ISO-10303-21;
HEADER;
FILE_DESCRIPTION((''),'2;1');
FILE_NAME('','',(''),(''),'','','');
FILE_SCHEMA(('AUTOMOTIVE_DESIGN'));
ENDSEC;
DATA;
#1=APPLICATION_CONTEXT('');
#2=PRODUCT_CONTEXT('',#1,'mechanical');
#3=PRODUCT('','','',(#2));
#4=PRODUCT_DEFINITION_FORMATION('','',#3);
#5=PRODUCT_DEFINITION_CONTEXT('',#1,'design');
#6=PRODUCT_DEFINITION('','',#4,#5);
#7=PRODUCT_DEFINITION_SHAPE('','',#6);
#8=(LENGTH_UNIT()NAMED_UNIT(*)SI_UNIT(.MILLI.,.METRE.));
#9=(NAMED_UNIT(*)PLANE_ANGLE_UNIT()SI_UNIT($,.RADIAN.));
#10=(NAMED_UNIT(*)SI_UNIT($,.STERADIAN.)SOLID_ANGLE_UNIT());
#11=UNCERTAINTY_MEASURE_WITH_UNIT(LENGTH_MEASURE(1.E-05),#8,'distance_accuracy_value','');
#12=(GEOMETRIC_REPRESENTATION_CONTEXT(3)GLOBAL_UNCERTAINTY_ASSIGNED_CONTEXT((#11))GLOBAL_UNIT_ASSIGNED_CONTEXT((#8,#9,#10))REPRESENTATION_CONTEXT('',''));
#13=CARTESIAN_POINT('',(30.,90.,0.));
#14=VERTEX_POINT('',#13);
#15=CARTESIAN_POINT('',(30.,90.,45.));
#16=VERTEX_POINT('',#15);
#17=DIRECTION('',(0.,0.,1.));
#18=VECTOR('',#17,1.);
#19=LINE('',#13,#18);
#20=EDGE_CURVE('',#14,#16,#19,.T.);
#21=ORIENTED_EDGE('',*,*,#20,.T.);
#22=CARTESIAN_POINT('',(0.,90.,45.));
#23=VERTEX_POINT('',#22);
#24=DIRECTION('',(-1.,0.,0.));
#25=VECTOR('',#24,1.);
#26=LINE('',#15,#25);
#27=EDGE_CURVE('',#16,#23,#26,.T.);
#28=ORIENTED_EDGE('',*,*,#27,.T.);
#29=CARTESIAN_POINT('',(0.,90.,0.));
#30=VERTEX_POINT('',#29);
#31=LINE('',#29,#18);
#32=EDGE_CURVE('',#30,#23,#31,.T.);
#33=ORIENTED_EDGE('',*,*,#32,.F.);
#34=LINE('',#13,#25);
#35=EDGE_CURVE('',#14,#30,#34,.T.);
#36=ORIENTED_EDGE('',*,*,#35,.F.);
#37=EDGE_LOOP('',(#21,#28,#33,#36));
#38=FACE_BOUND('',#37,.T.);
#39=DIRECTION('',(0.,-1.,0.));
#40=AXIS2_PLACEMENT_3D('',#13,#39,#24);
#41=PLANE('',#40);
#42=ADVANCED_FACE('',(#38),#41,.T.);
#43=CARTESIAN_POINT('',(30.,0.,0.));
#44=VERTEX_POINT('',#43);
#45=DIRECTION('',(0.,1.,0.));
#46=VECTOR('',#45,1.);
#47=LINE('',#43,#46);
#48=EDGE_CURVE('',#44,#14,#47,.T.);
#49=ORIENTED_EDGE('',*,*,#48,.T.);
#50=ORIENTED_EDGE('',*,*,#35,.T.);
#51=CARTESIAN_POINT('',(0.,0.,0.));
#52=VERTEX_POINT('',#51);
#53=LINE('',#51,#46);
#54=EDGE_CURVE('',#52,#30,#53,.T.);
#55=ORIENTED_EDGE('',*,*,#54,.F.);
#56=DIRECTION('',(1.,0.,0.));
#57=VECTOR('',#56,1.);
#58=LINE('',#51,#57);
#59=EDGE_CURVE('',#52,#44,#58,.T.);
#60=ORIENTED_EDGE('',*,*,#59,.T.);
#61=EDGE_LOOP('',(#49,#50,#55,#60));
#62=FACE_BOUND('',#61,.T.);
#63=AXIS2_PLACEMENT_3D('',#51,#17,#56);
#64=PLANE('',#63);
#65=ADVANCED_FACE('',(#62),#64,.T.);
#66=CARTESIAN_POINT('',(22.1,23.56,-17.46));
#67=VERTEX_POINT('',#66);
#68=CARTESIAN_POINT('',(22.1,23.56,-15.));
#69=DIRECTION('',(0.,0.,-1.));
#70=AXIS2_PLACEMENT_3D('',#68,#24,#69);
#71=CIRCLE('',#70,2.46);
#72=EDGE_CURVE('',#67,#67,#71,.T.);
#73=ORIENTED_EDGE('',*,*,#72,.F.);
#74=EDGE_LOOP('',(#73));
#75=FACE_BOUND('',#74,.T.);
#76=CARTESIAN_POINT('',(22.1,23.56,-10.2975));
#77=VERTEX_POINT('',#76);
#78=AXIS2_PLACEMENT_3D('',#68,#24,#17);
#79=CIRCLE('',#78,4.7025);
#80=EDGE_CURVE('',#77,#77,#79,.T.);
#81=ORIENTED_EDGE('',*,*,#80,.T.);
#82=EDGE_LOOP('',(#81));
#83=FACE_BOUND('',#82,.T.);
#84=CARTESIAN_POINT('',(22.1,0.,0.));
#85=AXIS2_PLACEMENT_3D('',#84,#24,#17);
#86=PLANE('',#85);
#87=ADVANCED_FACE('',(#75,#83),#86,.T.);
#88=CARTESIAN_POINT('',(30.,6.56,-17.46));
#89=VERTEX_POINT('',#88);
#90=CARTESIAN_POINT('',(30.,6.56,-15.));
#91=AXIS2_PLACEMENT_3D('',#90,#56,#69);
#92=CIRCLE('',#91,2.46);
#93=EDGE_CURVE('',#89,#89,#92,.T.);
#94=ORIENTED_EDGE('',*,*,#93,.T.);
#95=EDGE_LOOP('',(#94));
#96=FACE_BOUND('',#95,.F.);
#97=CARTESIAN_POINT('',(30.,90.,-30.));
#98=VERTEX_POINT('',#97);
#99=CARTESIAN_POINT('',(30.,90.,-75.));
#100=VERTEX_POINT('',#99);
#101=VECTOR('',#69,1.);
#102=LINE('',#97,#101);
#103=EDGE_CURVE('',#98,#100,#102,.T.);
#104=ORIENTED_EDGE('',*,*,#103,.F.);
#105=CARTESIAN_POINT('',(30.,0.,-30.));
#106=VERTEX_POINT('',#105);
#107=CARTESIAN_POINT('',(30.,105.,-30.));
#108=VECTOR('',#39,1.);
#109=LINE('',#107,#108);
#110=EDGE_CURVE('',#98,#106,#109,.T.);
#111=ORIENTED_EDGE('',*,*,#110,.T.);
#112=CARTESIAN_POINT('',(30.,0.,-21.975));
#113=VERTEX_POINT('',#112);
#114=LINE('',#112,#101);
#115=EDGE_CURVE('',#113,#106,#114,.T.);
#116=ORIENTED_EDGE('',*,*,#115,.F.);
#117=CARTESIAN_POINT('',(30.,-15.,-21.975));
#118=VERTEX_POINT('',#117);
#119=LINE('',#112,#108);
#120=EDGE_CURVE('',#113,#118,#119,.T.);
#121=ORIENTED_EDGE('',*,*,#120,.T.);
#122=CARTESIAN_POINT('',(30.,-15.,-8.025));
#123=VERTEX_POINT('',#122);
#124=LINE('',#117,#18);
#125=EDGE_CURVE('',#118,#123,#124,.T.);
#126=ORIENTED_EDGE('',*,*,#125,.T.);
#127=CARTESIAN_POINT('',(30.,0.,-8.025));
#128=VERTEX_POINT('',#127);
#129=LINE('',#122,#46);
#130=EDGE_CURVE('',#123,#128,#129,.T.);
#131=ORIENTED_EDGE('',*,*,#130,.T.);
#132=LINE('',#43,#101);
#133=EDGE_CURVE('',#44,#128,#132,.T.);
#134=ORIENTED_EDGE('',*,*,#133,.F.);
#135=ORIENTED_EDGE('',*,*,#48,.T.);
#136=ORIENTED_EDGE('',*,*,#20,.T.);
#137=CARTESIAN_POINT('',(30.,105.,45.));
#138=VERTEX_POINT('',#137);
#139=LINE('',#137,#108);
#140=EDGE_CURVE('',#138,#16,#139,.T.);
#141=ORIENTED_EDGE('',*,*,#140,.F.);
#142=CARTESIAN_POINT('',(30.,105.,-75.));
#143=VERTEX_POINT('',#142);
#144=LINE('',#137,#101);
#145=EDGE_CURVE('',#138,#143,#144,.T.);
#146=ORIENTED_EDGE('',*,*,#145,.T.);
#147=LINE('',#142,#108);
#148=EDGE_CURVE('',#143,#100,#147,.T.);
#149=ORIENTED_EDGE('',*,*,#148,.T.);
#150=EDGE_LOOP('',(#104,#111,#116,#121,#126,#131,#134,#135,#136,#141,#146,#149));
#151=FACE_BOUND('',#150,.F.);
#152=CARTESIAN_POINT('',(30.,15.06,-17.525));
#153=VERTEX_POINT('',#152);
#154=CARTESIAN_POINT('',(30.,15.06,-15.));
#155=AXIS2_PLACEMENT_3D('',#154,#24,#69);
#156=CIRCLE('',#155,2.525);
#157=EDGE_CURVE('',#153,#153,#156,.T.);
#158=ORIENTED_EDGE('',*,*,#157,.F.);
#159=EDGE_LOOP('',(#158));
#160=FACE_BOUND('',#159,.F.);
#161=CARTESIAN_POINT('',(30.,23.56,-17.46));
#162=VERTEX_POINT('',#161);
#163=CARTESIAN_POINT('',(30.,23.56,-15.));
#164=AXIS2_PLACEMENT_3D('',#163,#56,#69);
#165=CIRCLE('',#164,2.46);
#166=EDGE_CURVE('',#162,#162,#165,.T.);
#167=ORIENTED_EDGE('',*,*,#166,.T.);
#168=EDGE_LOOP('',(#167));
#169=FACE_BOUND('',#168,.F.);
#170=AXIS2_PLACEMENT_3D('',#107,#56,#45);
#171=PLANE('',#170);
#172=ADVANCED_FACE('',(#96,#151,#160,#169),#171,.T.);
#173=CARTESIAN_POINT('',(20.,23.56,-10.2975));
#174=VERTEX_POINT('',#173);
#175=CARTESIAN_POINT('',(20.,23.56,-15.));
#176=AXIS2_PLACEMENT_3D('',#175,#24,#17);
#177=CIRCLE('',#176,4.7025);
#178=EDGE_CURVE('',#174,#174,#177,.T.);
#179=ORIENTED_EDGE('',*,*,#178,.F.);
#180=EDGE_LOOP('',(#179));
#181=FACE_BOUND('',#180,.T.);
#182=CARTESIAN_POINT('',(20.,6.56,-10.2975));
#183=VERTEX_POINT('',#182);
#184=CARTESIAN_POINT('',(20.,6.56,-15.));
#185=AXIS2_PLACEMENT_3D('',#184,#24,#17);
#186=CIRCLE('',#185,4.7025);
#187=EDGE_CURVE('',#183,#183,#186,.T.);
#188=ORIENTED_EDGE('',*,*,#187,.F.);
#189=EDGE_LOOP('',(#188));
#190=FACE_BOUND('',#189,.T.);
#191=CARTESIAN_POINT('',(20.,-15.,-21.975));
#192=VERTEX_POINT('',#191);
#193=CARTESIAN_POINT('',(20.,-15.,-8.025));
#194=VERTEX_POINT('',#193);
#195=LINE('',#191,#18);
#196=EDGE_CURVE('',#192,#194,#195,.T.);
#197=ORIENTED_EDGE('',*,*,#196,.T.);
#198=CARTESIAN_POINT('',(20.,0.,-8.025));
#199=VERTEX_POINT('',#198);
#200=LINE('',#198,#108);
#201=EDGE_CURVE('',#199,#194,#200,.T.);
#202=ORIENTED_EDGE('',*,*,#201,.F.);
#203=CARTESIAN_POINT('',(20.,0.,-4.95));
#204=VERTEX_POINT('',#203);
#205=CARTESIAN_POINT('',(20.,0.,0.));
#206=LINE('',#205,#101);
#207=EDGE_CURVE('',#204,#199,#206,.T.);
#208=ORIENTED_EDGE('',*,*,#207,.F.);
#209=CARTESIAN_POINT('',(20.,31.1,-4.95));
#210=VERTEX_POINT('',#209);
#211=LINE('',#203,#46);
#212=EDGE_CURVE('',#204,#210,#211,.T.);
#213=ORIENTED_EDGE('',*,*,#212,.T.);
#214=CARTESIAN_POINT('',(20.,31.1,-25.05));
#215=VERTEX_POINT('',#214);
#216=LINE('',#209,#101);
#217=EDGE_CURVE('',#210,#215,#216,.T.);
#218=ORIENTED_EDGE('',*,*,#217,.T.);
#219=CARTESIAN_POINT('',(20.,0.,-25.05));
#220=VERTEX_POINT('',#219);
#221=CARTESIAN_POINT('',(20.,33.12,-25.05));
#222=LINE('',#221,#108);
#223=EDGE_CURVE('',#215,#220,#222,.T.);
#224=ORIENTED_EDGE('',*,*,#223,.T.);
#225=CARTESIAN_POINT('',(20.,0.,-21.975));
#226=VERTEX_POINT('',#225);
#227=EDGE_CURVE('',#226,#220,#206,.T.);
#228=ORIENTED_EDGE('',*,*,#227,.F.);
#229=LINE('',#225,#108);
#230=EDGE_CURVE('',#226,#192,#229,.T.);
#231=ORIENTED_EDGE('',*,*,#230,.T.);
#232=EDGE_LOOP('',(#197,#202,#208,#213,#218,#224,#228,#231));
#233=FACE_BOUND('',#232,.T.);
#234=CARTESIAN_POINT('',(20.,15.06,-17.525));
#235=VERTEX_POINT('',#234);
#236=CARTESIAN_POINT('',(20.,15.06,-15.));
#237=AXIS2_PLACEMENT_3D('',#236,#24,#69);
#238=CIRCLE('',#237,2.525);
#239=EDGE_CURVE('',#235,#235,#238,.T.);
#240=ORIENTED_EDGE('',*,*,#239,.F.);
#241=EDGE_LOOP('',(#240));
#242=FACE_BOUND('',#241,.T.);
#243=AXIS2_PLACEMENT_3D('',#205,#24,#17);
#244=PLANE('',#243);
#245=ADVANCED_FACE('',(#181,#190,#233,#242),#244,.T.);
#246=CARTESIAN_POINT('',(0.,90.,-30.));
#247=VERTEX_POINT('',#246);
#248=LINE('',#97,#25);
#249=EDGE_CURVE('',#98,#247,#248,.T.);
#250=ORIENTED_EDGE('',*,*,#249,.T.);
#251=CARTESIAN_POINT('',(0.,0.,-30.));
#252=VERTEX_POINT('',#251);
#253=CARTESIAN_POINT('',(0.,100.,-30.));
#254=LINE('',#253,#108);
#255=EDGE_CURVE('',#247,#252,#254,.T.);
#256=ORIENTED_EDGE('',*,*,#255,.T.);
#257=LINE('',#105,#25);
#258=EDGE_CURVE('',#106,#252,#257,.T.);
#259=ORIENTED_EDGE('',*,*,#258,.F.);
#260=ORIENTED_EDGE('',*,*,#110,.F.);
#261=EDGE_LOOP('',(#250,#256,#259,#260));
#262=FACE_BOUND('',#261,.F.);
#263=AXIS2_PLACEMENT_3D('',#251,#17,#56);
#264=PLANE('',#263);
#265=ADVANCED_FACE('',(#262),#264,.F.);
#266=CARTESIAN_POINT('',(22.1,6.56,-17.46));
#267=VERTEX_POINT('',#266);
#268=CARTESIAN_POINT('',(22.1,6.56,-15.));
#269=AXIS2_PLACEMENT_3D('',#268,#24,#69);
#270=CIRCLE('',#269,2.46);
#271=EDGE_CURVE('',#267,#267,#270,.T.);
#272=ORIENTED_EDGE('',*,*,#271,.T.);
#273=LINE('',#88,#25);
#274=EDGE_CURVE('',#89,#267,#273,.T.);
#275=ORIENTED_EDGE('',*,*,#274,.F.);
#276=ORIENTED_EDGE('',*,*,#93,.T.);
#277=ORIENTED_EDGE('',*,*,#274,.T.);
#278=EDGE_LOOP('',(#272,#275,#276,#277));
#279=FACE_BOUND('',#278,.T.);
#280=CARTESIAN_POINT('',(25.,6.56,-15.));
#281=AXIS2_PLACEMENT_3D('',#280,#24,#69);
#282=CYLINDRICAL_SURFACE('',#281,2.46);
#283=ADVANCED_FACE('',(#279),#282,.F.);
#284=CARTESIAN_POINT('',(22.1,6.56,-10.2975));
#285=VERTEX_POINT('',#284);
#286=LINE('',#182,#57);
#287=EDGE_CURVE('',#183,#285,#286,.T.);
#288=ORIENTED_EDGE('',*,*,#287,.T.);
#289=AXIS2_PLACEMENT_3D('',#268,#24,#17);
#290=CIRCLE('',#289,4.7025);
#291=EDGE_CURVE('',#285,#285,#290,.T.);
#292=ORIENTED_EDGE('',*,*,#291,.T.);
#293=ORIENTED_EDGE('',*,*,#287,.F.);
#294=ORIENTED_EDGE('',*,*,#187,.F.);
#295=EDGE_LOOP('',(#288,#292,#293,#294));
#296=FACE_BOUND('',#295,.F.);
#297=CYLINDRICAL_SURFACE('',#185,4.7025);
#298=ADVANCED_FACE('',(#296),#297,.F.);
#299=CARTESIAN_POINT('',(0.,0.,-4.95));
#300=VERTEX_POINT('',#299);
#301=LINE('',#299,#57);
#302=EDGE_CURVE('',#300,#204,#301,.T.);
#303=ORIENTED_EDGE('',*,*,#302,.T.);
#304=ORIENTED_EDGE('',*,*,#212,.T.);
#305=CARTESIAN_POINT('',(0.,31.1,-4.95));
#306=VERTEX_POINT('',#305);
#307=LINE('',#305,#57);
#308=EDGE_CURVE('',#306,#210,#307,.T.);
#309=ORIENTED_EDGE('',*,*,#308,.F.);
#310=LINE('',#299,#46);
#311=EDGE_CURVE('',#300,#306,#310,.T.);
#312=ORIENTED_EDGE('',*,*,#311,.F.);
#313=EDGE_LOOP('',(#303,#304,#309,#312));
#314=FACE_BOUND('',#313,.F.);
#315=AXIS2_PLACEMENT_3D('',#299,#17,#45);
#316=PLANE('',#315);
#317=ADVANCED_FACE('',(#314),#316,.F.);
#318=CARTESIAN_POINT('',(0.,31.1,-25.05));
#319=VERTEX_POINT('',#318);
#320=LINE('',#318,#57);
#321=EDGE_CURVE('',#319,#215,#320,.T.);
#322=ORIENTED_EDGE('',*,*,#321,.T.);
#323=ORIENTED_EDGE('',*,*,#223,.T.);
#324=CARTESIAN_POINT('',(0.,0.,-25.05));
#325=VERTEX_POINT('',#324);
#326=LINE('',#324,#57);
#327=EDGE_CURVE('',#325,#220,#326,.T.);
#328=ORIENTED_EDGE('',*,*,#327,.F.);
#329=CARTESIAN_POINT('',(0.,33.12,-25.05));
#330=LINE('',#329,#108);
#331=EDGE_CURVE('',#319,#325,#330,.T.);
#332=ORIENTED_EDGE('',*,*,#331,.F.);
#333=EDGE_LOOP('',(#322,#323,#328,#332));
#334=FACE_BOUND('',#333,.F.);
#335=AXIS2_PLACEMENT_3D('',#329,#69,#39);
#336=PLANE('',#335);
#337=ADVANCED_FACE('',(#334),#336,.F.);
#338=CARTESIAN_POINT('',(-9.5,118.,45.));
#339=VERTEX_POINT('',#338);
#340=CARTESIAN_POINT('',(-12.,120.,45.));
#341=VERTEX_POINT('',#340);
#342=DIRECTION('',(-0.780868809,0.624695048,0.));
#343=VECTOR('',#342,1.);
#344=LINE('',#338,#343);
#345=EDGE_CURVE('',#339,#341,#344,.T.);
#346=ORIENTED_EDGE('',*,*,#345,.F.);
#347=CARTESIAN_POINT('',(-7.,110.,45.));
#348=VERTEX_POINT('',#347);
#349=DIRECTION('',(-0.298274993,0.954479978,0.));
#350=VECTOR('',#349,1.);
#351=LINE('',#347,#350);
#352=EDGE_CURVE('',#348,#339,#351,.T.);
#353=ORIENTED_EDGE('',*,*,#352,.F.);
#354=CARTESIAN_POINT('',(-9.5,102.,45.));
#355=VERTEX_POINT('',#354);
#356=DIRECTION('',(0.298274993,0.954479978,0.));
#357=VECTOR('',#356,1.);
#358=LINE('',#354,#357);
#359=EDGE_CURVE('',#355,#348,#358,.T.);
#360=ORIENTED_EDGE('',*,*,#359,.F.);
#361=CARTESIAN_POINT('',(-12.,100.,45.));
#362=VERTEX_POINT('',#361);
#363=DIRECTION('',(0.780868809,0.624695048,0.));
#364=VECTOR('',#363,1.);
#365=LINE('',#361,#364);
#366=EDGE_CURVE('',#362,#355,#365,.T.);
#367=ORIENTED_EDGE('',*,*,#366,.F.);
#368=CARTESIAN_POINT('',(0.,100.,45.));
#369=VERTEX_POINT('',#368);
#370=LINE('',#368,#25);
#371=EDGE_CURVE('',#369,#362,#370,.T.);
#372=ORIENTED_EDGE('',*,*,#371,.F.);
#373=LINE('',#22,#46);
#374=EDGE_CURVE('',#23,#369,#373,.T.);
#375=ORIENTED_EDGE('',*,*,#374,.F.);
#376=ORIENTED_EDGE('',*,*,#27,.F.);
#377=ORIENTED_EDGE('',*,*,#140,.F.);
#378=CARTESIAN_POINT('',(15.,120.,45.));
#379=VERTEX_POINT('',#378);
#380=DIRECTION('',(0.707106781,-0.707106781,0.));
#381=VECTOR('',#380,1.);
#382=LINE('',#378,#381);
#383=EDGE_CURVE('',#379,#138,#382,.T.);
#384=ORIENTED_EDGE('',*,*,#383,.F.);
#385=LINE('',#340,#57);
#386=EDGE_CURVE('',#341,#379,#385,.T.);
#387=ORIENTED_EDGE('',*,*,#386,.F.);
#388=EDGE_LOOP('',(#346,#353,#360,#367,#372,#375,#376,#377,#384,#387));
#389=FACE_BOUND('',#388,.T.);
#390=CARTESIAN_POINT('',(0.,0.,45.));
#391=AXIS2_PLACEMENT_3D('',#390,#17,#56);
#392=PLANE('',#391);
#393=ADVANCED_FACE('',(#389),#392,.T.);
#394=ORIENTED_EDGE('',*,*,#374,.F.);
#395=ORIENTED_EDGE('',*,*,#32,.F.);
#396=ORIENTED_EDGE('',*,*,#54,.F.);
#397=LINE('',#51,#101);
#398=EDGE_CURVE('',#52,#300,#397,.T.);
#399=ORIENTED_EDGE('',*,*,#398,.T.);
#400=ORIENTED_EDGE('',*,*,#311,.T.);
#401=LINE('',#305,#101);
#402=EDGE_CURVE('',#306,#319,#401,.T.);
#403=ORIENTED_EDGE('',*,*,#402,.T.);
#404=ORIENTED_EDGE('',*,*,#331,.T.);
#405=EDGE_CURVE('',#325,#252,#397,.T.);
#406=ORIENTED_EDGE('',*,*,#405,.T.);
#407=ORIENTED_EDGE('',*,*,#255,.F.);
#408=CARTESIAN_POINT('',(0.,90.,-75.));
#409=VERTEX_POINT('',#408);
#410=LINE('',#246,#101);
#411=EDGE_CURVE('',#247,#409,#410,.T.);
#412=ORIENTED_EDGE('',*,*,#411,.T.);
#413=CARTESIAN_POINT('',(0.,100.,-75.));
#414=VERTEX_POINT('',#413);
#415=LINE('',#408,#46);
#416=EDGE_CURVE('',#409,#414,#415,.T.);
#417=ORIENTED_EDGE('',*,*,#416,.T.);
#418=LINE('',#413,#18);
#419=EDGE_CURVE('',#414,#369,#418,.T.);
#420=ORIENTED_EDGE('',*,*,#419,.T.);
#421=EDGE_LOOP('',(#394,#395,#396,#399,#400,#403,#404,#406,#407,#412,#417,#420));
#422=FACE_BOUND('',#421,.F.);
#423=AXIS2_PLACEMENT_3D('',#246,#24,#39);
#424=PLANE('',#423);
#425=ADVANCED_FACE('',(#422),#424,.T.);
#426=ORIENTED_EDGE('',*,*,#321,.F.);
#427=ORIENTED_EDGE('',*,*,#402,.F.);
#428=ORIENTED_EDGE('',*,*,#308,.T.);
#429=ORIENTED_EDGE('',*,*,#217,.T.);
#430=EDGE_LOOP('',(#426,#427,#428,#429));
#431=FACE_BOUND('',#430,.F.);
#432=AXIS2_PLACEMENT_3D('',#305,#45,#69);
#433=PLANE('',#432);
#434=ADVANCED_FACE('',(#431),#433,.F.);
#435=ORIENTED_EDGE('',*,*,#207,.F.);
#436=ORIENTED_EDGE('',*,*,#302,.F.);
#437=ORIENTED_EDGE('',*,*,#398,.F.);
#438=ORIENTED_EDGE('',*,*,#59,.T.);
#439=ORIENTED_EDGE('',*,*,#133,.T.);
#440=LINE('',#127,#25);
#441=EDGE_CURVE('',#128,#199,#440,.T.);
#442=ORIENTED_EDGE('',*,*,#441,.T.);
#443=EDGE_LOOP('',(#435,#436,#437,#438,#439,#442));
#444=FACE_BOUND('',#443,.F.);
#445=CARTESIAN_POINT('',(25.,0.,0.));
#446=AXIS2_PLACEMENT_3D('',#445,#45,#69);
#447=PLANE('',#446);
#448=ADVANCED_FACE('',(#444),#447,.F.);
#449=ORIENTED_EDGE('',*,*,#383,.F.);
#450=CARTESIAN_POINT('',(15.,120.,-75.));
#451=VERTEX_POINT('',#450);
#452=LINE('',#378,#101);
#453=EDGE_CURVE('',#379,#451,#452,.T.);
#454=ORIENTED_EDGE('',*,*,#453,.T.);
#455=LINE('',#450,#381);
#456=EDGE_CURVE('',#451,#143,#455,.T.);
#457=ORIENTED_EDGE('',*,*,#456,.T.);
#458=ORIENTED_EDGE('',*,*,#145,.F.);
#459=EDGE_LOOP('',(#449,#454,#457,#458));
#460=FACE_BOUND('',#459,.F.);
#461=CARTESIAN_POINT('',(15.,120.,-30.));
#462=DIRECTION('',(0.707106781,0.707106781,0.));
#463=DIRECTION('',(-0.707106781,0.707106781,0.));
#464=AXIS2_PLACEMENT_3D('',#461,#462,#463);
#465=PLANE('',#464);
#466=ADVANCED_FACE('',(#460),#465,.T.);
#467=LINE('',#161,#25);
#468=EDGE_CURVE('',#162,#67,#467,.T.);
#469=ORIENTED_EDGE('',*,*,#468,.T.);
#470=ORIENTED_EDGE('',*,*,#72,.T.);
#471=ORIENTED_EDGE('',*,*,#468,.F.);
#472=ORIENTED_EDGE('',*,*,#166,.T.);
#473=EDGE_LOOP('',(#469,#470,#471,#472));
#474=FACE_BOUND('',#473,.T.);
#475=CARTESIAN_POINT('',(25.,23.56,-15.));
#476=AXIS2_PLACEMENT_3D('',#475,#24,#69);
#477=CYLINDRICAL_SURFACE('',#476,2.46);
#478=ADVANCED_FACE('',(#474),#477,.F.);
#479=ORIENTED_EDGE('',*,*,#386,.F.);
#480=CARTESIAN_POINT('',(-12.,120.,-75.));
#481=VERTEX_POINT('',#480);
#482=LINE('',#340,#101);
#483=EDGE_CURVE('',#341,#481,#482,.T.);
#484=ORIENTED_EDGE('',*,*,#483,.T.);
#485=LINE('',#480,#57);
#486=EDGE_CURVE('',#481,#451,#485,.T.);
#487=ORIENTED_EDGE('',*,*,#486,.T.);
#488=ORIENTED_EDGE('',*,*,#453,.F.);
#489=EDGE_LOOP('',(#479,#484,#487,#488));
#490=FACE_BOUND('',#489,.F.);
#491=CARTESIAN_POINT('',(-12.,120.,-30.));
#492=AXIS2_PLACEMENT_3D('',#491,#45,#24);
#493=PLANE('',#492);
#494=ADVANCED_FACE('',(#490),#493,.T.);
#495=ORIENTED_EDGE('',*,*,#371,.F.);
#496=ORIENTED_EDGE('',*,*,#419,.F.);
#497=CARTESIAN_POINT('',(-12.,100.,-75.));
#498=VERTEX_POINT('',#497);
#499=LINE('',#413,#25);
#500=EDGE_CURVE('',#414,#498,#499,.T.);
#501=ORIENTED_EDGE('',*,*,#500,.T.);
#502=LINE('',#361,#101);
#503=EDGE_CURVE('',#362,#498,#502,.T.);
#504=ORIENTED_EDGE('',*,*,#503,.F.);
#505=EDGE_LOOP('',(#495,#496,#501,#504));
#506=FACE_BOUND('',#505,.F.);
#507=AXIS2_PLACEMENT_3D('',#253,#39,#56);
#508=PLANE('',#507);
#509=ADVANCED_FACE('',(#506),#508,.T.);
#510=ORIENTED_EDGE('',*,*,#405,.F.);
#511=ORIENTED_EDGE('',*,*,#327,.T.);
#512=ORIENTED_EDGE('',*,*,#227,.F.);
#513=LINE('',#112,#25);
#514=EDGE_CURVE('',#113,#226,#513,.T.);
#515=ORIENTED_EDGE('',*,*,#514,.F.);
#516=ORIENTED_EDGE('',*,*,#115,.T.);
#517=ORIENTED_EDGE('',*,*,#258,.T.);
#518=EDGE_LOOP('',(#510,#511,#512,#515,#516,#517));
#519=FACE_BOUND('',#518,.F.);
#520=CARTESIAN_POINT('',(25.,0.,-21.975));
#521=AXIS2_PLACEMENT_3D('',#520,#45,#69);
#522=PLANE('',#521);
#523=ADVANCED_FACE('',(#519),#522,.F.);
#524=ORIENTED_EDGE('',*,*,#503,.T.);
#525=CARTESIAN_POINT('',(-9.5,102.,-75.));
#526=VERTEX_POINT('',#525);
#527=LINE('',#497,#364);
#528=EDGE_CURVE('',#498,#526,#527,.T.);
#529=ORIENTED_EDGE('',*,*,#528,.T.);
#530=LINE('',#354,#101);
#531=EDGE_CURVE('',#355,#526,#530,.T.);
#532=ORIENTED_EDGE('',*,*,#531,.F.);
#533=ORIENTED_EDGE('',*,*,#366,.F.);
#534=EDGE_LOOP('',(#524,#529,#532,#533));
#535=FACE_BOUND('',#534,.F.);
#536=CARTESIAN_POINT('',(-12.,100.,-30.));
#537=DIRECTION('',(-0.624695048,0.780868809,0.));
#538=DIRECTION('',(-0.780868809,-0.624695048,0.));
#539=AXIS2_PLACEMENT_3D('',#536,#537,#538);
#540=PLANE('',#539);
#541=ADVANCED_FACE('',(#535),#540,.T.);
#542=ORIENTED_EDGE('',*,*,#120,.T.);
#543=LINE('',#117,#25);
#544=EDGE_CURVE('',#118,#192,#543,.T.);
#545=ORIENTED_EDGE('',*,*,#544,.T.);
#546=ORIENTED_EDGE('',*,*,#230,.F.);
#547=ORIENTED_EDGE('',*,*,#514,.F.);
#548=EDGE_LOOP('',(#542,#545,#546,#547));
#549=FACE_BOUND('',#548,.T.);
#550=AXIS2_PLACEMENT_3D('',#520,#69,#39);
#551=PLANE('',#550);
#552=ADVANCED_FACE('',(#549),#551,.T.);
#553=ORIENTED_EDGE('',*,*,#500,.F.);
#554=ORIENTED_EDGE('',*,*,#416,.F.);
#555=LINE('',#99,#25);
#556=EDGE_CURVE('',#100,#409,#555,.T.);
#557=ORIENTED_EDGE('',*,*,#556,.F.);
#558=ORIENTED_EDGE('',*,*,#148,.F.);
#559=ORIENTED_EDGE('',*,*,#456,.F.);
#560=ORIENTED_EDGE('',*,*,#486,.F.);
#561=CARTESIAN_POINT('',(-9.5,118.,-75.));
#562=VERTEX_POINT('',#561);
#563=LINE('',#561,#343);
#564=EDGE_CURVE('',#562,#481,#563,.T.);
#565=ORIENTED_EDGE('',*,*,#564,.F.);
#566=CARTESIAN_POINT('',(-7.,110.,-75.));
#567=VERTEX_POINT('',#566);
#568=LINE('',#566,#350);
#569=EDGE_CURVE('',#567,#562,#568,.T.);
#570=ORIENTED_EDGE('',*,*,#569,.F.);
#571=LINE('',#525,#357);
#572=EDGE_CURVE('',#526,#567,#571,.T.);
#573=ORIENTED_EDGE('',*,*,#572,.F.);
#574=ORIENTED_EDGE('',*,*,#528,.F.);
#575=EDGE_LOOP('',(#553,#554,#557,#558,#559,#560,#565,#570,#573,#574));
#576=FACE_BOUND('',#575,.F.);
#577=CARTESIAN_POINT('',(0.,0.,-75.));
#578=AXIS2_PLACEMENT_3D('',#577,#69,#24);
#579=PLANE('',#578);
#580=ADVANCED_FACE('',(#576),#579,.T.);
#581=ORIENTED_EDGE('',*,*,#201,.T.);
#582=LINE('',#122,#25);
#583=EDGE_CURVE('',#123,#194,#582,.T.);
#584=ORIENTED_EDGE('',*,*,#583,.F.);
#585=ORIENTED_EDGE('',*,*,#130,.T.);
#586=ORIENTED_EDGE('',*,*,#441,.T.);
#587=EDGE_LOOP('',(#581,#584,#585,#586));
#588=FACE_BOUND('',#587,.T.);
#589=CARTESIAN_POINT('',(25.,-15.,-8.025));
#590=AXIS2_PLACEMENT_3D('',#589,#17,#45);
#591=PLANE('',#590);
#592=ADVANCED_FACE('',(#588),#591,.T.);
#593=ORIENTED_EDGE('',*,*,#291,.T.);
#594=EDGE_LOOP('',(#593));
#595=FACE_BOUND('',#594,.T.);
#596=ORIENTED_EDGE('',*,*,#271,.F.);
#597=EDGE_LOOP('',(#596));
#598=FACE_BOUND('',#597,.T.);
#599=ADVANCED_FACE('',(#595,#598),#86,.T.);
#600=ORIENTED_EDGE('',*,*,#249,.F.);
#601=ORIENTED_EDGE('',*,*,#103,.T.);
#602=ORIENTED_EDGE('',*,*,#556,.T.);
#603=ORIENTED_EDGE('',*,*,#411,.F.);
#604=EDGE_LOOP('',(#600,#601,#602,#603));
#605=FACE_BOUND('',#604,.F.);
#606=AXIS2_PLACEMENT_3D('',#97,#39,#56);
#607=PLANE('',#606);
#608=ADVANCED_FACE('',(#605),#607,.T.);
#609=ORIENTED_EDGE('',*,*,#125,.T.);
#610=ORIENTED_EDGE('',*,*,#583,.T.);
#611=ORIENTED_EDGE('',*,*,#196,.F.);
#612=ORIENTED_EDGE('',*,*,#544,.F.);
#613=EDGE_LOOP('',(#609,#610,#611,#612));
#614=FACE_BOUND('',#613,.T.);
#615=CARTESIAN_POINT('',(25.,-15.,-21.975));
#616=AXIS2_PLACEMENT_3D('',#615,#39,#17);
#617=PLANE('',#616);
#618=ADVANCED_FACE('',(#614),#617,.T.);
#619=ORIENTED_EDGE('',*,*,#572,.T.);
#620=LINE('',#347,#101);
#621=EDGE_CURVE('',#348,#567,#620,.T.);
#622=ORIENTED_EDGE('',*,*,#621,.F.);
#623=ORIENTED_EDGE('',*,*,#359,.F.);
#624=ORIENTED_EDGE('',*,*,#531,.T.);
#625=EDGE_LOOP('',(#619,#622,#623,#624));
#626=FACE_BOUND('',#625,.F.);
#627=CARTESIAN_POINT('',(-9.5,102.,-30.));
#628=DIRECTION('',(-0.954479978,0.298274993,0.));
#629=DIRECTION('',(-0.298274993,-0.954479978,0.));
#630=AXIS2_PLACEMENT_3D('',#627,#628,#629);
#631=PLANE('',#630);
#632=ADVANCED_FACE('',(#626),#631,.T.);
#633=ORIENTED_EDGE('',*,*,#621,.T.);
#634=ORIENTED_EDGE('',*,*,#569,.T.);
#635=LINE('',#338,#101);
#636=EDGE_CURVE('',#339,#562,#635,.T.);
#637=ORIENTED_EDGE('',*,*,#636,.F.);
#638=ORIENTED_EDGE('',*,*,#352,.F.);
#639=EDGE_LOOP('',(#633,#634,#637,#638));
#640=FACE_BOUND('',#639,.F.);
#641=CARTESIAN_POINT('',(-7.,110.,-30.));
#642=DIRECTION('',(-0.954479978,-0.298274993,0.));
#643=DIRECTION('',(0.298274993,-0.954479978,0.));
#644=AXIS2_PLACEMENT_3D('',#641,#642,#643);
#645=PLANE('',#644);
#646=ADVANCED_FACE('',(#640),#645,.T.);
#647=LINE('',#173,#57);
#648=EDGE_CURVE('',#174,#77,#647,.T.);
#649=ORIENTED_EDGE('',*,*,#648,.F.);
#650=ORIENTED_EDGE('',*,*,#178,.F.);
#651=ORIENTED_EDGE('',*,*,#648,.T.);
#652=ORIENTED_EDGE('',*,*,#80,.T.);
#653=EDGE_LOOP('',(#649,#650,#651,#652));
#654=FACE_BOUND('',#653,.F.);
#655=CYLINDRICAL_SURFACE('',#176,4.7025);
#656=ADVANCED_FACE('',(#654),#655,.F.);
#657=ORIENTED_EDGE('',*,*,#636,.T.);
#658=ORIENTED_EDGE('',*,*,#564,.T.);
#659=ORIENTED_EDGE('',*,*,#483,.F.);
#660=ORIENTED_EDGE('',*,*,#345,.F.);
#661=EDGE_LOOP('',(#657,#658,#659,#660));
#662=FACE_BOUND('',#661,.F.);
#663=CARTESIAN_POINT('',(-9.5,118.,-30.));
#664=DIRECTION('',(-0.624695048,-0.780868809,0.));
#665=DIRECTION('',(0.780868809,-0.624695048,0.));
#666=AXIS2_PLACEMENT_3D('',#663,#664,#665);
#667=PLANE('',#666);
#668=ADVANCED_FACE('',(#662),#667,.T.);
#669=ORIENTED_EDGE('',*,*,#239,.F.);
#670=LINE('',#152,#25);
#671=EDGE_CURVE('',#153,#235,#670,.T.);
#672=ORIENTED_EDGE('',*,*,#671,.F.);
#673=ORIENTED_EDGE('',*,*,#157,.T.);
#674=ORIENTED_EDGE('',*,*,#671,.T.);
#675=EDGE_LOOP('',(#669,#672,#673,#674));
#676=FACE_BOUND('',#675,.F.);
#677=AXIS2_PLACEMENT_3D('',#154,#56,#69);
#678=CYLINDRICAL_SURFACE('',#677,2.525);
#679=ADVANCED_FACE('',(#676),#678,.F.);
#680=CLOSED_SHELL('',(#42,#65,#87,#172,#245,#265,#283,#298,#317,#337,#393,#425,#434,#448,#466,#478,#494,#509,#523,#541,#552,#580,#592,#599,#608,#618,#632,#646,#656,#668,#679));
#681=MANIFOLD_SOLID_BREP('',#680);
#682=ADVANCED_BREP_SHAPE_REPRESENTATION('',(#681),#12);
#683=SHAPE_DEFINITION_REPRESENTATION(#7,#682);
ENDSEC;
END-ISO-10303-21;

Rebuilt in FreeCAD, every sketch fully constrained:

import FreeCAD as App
import Part
import Sketcher

doc = App.newDocument("Part")
params = doc.addObject("Spreadsheet::Sheet", "Params")
for row, (alias, value) in enumerate([
    ("sketch1_width", "25 mm"),
    ("sketch1_height", "40 mm"),
    ("pad1_length", "30 mm"),
    ("sketch2_diameter", "4.92 mm"),
    ("pocket1_length", "30 mm"),
    ("sketch3_height", "20.1 mm"),
    ("sketch3_width", "33.12 mm"),
    ("pocket2_length", "20 mm"),
    ("sketch4_height", "13.95 mm"),
    ("sketch4_width", "5 mm"),
    ("pad2_length", "15 mm"),
    ("sketch5_diameter", "4.92 mm"),
    ("pocket3_length", "2.1 mm"),
    ("sketch6_diameter", "4.92 mm"),
    ("pocket4_length", "10 mm"),
    ("sketch7_diameter", "4.92 mm"),
    ("pocket5_length", "2.1 mm"),
    ("sketch8_diameter", "4.92 mm"),
    ("sketch8_width", "40 mm"),
    ("sketch8_width2", "15 mm"),
    ("sketch8_height", "30 mm"),
    ("sketch8_height2", "13.95 mm"),
    ("pad3_length", "5 mm"),
    ("sketch9_width", "30 mm"),
    ("pad4_length", "30 mm"),
    ("sketch10_diameter", "5.05 mm"),
    ("pocket6_length", "30 mm"),
    ("sketch11_width", "12 mm"),
    ("sketch11_width2", "30 mm"),
    ("sketch11_width3", "27 mm"),
    ("sketch11_height", "35 mm"),
    ("pad5_length", "30 mm"),
    ("sketch12_width", "2.02 mm"),
    ("sketch12_height", "20.1 mm"),
    ("pad6_length", "20 mm"),
    ("sketch13_width", "30 mm"),
    ("sketch13_height", "15 mm"),
    ("sketch13_width2", "12 mm"),
    ("sketch13_height2", "10 mm"),
    ("pad7_length", "45 mm"),
], start=1):
    params.set(f"A{row}", alias)
    params.set(f"B{row}", "=" + value)
    params.setAlias(f"B{row}", alias)

body = doc.addObject("PartDesign::Body", "Body")

sketch1 = body.newObject("Sketcher::SketchObject", "Sketch")
sketch1.AttachmentSupport = (doc.getObject("XY_Plane"), [""])
sketch1.MapMode = "FlatFace"
sketch1.addGeometry(Part.LineSegment(App.Vector(0, 40, 0), App.Vector(0, 0, 0)), False)
sketch1.addGeometry(Part.LineSegment(App.Vector(0, 0, 0), App.Vector(25, 0, 0)), False)
sketch1.addGeometry(Part.LineSegment(App.Vector(25, 0, 0), App.Vector(25, 40, 0)), False)
sketch1.addGeometry(Part.LineSegment(App.Vector(25, 40, 0), App.Vector(0, 40, 0)), False)
sketch1.addConstraint(Sketcher.Constraint("Coincident", 0, 2, 1, 1))
sketch1.addConstraint(Sketcher.Constraint("Coincident", 1, 2, 2, 1))
sketch1.addConstraint(Sketcher.Constraint("Coincident", 2, 2, 3, 1))
sketch1.addConstraint(Sketcher.Constraint("Coincident", 3, 2, 0, 1))
sketch1.addConstraint(Sketcher.Constraint("Vertical", 0))
sketch1.addConstraint(Sketcher.Constraint("Horizontal", 1))
sketch1.addConstraint(Sketcher.Constraint("Vertical", 2))
sketch1.addConstraint(Sketcher.Constraint("Horizontal", 3))
sketch1.addConstraint(Sketcher.Constraint("Coincident", 0, 2, -1, 1))
sketch1.addConstraint(Sketcher.Constraint("DistanceX", 1, 1, 1, 2, 25.0))
sketch1.addConstraint(Sketcher.Constraint("DistanceY", 0, 2, 0, 1, 40.0))
sketch1.setExpression("Constraints[9]", "Params.sketch1_width")
sketch1.setExpression("Constraints[10]", "Params.sketch1_height")
pad1 = body.newObject("PartDesign::Pad", "Pad")
pad1.Profile = sketch1
pad1.setExpression("Length", "Params.pad1_length")
pad1.Reversed = True

sketch2 = body.newObject("Sketcher::SketchObject", "Sketch001")
sketch2.AttachmentSupport = (doc.getObject("YZ_Plane"), [""])
sketch2.MapMode = "FlatFace"
sketch2.AttachmentOffset = App.Placement(App.Vector(0, 0, 25), App.Rotation())
sketch2.addGeometry(Part.Circle(App.Vector(6.6, -15, 0), App.Vector(0, 0, 1), 2.5), False)
sketch2.addConstraint(Sketcher.Constraint("Diameter", 0, 4.92))
sketch2.addConstraint(Sketcher.Constraint("DistanceY", 0, 3, -1, 1, 15.0))
sketch2.addConstraint(Sketcher.Constraint("DistanceX", -1, 1, 0, 3, 6.56))
sketch2.setExpression("Constraints[0]", "Params.sketch2_diameter")
pocket1 = body.newObject("PartDesign::Pocket", "Pocket")
pocket1.Profile = sketch2
pocket1.setExpression("Length", "Params.pocket1_length")

sketch3 = body.newObject("Sketcher::SketchObject", "Sketch002")
sketch3.AttachmentSupport = (doc.getObject("YZ_Plane"), [""])
sketch3.MapMode = "FlatFace"
sketch3.addGeometry(Part.LineSegment(App.Vector(0, -25, 0), App.Vector(0, -5, 0)), False)
sketch3.addGeometry(Part.LineSegment(App.Vector(0, -5, 0), App.Vector(33, -5, 0)), False)
sketch3.addGeometry(Part.LineSegment(App.Vector(33, -5, 0), App.Vector(33, -25, 0)), False)
sketch3.addGeometry(Part.LineSegment(App.Vector(33, -25, 0), App.Vector(0, -25, 0)), False)
sketch3.addConstraint(Sketcher.Constraint("Coincident", 0, 2, 1, 1))
sketch3.addConstraint(Sketcher.Constraint("Coincident", 1, 2, 2, 1))
sketch3.addConstraint(Sketcher.Constraint("Coincident", 2, 2, 3, 1))
sketch3.addConstraint(Sketcher.Constraint("Coincident", 3, 2, 0, 1))
sketch3.addConstraint(Sketcher.Constraint("Vertical", 0))
sketch3.addConstraint(Sketcher.Constraint("Horizontal", 1))
sketch3.addConstraint(Sketcher.Constraint("Vertical", 2))
sketch3.addConstraint(Sketcher.Constraint("Horizontal", 3))
sketch3.addConstraint(Sketcher.Constraint("PointOnObject", 0, 2, -2))
sketch3.addConstraint(Sketcher.Constraint("DistanceY", 0, 1, 0, 2, 20.1))
sketch3.addConstraint(Sketcher.Constraint("DistanceX", 1, 1, 1, 2, 33.12))
sketch3.addConstraint(Sketcher.Constraint("DistanceY", 0, 2, -1, 1, 4.95))
sketch3.setExpression("Constraints[9]", "Params.sketch3_height")
sketch3.setExpression("Constraints[10]", "Params.sketch3_width")
pocket2 = body.newObject("PartDesign::Pocket", "Pocket001")
pocket2.Profile = sketch3
pocket2.setExpression("Length", "Params.pocket2_length")
pocket2.Reversed = True

sketch4 = body.newObject("Sketcher::SketchObject", "Sketch003")
sketch4.AttachmentSupport = (doc.getObject("XZ_Plane"), [""])
sketch4.MapMode = "FlatFace"
sketch4.addGeometry(Part.LineSegment(App.Vector(25, -8, 0), App.Vector(20, -8, 0)), False)
sketch4.addGeometry(Part.LineSegment(App.Vector(20, -8, 0), App.Vector(20, -22, 0)), False)
sketch4.addGeometry(Part.LineSegment(App.Vector(20, -22, 0), App.Vector(25, -22, 0)), False)
sketch4.addGeometry(Part.LineSegment(App.Vector(25, -22, 0), App.Vector(25, -8, 0)), False)
sketch4.addConstraint(Sketcher.Constraint("Coincident", 0, 2, 1, 1))
sketch4.addConstraint(Sketcher.Constraint("Coincident", 1, 2, 2, 1))
sketch4.addConstraint(Sketcher.Constraint("Coincident", 2, 2, 3, 1))
sketch4.addConstraint(Sketcher.Constraint("Coincident", 3, 2, 0, 1))
sketch4.addConstraint(Sketcher.Constraint("Horizontal", 0))
sketch4.addConstraint(Sketcher.Constraint("Vertical", 1))
sketch4.addConstraint(Sketcher.Constraint("Horizontal", 2))
sketch4.addConstraint(Sketcher.Constraint("Vertical", 3))
sketch4.addConstraint(Sketcher.Constraint("DistanceY", 1, 2, 1, 1, 13.95))
sketch4.addConstraint(Sketcher.Constraint("DistanceX", 0, 2, 0, 1, 5.0))
sketch4.addConstraint(Sketcher.Constraint("DistanceX", -1, 1, 0, 2, 20.0))
sketch4.addConstraint(Sketcher.Constraint("DistanceY", 0, 2, -1, 1, 8.025))
sketch4.setExpression("Constraints[8]", "Params.sketch4_height")
sketch4.setExpression("Constraints[9]", "Params.sketch4_width")
pad2 = body.newObject("PartDesign::Pad", "Pad001")
pad2.Profile = sketch4
pad2.setExpression("Length", "Params.pad2_length")

sketch5 = body.newObject("Sketcher::SketchObject", "Sketch004")
sketch5.AttachmentSupport = (doc.getObject("YZ_Plane"), [""])
sketch5.MapMode = "FlatFace"
sketch5.AttachmentOffset = App.Placement(App.Vector(0, 0, 20), App.Rotation())
sketch5.addGeometry(Part.Circle(App.Vector(6.6, -15, 0), App.Vector(0, 0, 1), 4.7), False)
sketch5.addGeometry(Part.Circle(App.Vector(6.6, -15, 0), App.Vector(0, 0, 1), 2.5), False)
sketch5.addConstraint(Sketcher.Constraint("Coincident", 1, 3, 0, 3))
sketch5.addConstraint(Sketcher.Constraint("Diameter", 0, 9.405))
sketch5.addConstraint(Sketcher.Constraint("Diameter", 1, 4.92))
sketch5.addConstraint(Sketcher.Constraint("DistanceY", 0, 3, -1, 1, 15.0))
sketch5.addConstraint(Sketcher.Constraint("DistanceX", -1, 1, 0, 3, 6.56))
sketch5.setExpression("Constraints[2]", "Params.sketch5_diameter")
pocket3 = body.newObject("PartDesign::Pocket", "Pocket002")
pocket3.Profile = sketch5
pocket3.setExpression("Length", "Params.pocket3_length")
pocket3.Reversed = True

sketch6 = body.newObject("Sketcher::SketchObject", "Sketch005")
sketch6.AttachmentSupport = (doc.getObject("YZ_Plane"), [""])
sketch6.MapMode = "FlatFace"
sketch6.AttachmentOffset = App.Placement(App.Vector(0, 0, 25), App.Rotation())
sketch6.addGeometry(Part.Circle(App.Vector(23.6, -15, 0), App.Vector(0, 0, 1), 2.5), False)
sketch6.addConstraint(Sketcher.Constraint("Diameter", 0, 4.92))
sketch6.addConstraint(Sketcher.Constraint("DistanceY", 0, 3, -1, 1, 15.0))
sketch6.addConstraint(Sketcher.Constraint("DistanceX", -1, 1, 0, 3, 23.56))
sketch6.setExpression("Constraints[0]", "Params.sketch6_diameter")
pocket4 = body.newObject("PartDesign::Pocket", "Pocket003")
pocket4.Profile = sketch6
pocket4.setExpression("Length", "Params.pocket4_length")

sketch7 = body.newObject("Sketcher::SketchObject", "Sketch006")
sketch7.AttachmentSupport = (doc.getObject("YZ_Plane"), [""])
sketch7.MapMode = "FlatFace"
sketch7.AttachmentOffset = App.Placement(App.Vector(0, 0, 20), App.Rotation())
sketch7.addGeometry(Part.Circle(App.Vector(23.6, -15, 0), App.Vector(0, 0, 1), 4.7), False)
sketch7.addGeometry(Part.Circle(App.Vector(23.6, -15, 0), App.Vector(0, 0, 1), 2.5), False)
sketch7.addConstraint(Sketcher.Constraint("Coincident", 1, 3, 0, 3))
sketch7.addConstraint(Sketcher.Constraint("Diameter", 0, 9.405))
sketch7.addConstraint(Sketcher.Constraint("Diameter", 1, 4.92))
sketch7.addConstraint(Sketcher.Constraint("DistanceY", 0, 3, -1, 1, 15.0))
sketch7.addConstraint(Sketcher.Constraint("DistanceX", -1, 1, 0, 3, 23.56))
sketch7.setExpression("Constraints[2]", "Params.sketch7_diameter")
pocket5 = body.newObject("PartDesign::Pocket", "Pocket004")
pocket5.Profile = sketch7
pocket5.setExpression("Length", "Params.pocket5_length")
pocket5.Reversed = True

sketch8 = body.newObject("Sketcher::SketchObject", "Sketch007")
sketch8.AttachmentSupport = (doc.getObject("YZ_Plane"), [""])
sketch8.MapMode = "FlatFace"
sketch8.AttachmentOffset = App.Placement(App.Vector(0, 0, 25), App.Rotation())
sketch8.addGeometry(Part.LineSegment(App.Vector(0, -30, 0), App.Vector(40, -30, 0)), False)
sketch8.addGeometry(Part.LineSegment(App.Vector(40, -30, 0), App.Vector(40, 0, 0)), False)
sketch8.addGeometry(Part.LineSegment(App.Vector(40, 0, 0), App.Vector(0, 0, 0)), False)
sketch8.addGeometry(Part.LineSegment(App.Vector(0, 0, 0), App.Vector(0, -8, 0)), False)
sketch8.addGeometry(Part.LineSegment(App.Vector(0, -8, 0), App.Vector(-15, -8, 0)), False)
sketch8.addGeometry(Part.LineSegment(App.Vector(-15, -8, 0), App.Vector(-15, -22, 0)), False)
sketch8.addGeometry(Part.LineSegment(App.Vector(-15, -22, 0), App.Vector(0, -22, 0)), False)
sketch8.addGeometry(Part.LineSegment(App.Vector(0, -22, 0), App.Vector(0, -30, 0)), False)
sketch8.addGeometry(Part.Circle(App.Vector(6.6, -15, 0), App.Vector(0, 0, 1), 2.5), False)
sketch8.addGeometry(Part.Circle(App.Vector(23.6, -15, 0), App.Vector(0, 0, 1), 2.5), False)
sketch8.addConstraint(Sketcher.Constraint("Coincident", 0, 2, 1, 1))
sketch8.addConstraint(Sketcher.Constraint("Coincident", 1, 2, 2, 1))
sketch8.addConstraint(Sketcher.Constraint("Coincident", 2, 2, 3, 1))
sketch8.addConstraint(Sketcher.Constraint("Coincident", 3, 2, 4, 1))
sketch8.addConstraint(Sketcher.Constraint("Coincident", 4, 2, 5, 1))
sketch8.addConstraint(Sketcher.Constraint("Coincident", 5, 2, 6, 1))
sketch8.addConstraint(Sketcher.Constraint("Coincident", 6, 2, 7, 1))
sketch8.addConstraint(Sketcher.Constraint("Coincident", 7, 2, 0, 1))
sketch8.addConstraint(Sketcher.Constraint("Horizontal", 0))
sketch8.addConstraint(Sketcher.Constraint("Vertical", 1))
sketch8.addConstraint(Sketcher.Constraint("Horizontal", 2))
sketch8.addConstraint(Sketcher.Constraint("Vertical", 3))
sketch8.addConstraint(Sketcher.Constraint("Horizontal", 4))
sketch8.addConstraint(Sketcher.Constraint("Vertical", 5))
sketch8.addConstraint(Sketcher.Constraint("Horizontal", 6))
sketch8.addConstraint(Sketcher.Constraint("Vertical", 7))
sketch8.addConstraint(Sketcher.Constraint("Coincident", 2, 2, -1, 1))
sketch8.addConstraint(Sketcher.Constraint("Equal", 8, 9))
sketch8.addConstraint(Sketcher.Constraint("PointOnObject", 6, 2, -2))
sketch8.addConstraint(Sketcher.Constraint("Horizontal", 8, 3, 9, 3))
sketch8.addConstraint(Sketcher.Constraint("Equal", 3, 7))
sketch8.addConstraint(Sketcher.Constraint("Diameter", 8, 4.92))
sketch8.addConstraint(Sketcher.Constraint("DistanceX", 0, 1, 0, 2, 40.0))
sketch8.addConstraint(Sketcher.Constraint("DistanceX", 4, 2, 4, 1, 15.0))
sketch8.addConstraint(Sketcher.Constraint("DistanceY", 1, 1, 1, 2, 30.0))
sketch8.addConstraint(Sketcher.Constraint("DistanceY", 8, 3, -1, 1, 15.0))
sketch8.addConstraint(Sketcher.Constraint("DistanceX", 8, 3, 9, 3, 17.0))
sketch8.addConstraint(Sketcher.Constraint("DistanceY", 5, 2, 5, 1, 13.95))
sketch8.addConstraint(Sketcher.Constraint("DistanceX", -1, 1, 8, 3, 6.56))
sketch8.setExpression("Constraints[21]", "Params.sketch8_diameter")
sketch8.setExpression("Constraints[22]", "Params.sketch8_width")
sketch8.setExpression("Constraints[23]", "Params.sketch8_width2")
sketch8.setExpression("Constraints[24]", "Params.sketch8_height")
sketch8.setExpression("Constraints[27]", "Params.sketch8_height2")
pad3 = body.newObject("PartDesign::Pad", "Pad002")
pad3.Profile = sketch8
pad3.setExpression("Length", "Params.pad3_length")

sketch9 = body.newObject("Sketcher::SketchObject", "Sketch008")
sketch9.AttachmentSupport = (doc.getObject("XZ_Plane"), [""])
sketch9.MapMode = "FlatFace"
sketch9.AttachmentOffset = App.Placement(App.Vector(0, 0, -40), App.Rotation())
sketch9.addGeometry(Part.LineSegment(App.Vector(30, -30, 0), App.Vector(0, -30, 0)), False)
sketch9.addGeometry(Part.LineSegment(App.Vector(0, -30, 0), App.Vector(0, 0, 0)), False)
sketch9.addGeometry(Part.LineSegment(App.Vector(0, 0, 0), App.Vector(30, 0, 0)), False)
sketch9.addGeometry(Part.LineSegment(App.Vector(30, 0, 0), App.Vector(30, -30, 0)), False)
sketch9.addConstraint(Sketcher.Constraint("Coincident", 0, 2, 1, 1))
sketch9.addConstraint(Sketcher.Constraint("Coincident", 1, 2, 2, 1))
sketch9.addConstraint(Sketcher.Constraint("Coincident", 2, 2, 3, 1))
sketch9.addConstraint(Sketcher.Constraint("Coincident", 3, 2, 0, 1))
sketch9.addConstraint(Sketcher.Constraint("Horizontal", 0))
sketch9.addConstraint(Sketcher.Constraint("Vertical", 1))
sketch9.addConstraint(Sketcher.Constraint("Horizontal", 2))
sketch9.addConstraint(Sketcher.Constraint("Vertical", 3))
sketch9.addConstraint(Sketcher.Constraint("Coincident", 1, 2, -1, 1))
sketch9.addConstraint(Sketcher.Constraint("Equal", 2, 1))
sketch9.addConstraint(Sketcher.Constraint("DistanceX", 0, 2, 0, 1, 30.0))
sketch9.setExpression("Constraints[10]", "Params.sketch9_width")
pad4 = body.newObject("PartDesign::Pad", "Pad003")
pad4.Profile = sketch9
pad4.setExpression("Length", "Params.pad4_length")
pad4.Reversed = True

sketch10 = body.newObject("Sketcher::SketchObject", "Sketch009")
sketch10.AttachmentSupport = (doc.getObject("YZ_Plane"), [""])
sketch10.MapMode = "FlatFace"
sketch10.AttachmentOffset = App.Placement(App.Vector(0, 0, 30), App.Rotation())
sketch10.addGeometry(Part.Circle(App.Vector(15.1, -15, 0), App.Vector(0, 0, 1), 2.5), False)
sketch10.addConstraint(Sketcher.Constraint("Diameter", 0, 5.05))
sketch10.addConstraint(Sketcher.Constraint("DistanceY", 0, 3, -1, 1, 15.0))
sketch10.addConstraint(Sketcher.Constraint("DistanceX", -1, 1, 0, 3, 15.06))
sketch10.setExpression("Constraints[0]", "Params.sketch10_diameter")
pocket6 = body.newObject("PartDesign::Pocket", "Pocket005")
pocket6.Profile = sketch10
pocket6.setExpression("Length", "Params.pocket6_length")

sketch11 = body.newObject("Sketcher::SketchObject", "Sketch010")
sketch11.AttachmentSupport = (doc.getObject("XY_Plane"), [""])
sketch11.MapMode = "FlatFace"
sketch11.addGeometry(Part.LineSegment(App.Vector(0, 70, 0), App.Vector(30, 70, 0)), False)
sketch11.addGeometry(Part.LineSegment(App.Vector(30, 70, 0), App.Vector(30, 105, 0)), False)
sketch11.addGeometry(Part.LineSegment(App.Vector(30, 105, 0), App.Vector(15, 120, 0)), False)
sketch11.addGeometry(Part.LineSegment(App.Vector(15, 120, 0), App.Vector(-12, 120, 0)), False)
sketch11.addGeometry(Part.LineSegment(App.Vector(-12, 120, 0), App.Vector(-9.5, 118, 0)), False)
sketch11.addGeometry(Part.LineSegment(App.Vector(-9.5, 118, 0), App.Vector(-7, 110, 0)), False)
sketch11.addGeometry(Part.LineSegment(App.Vector(-7, 110, 0), App.Vector(-9.5, 102, 0)), False)
sketch11.addGeometry(Part.LineSegment(App.Vector(-9.5, 102, 0), App.Vector(-12, 100, 0)), False)
sketch11.addGeometry(Part.LineSegment(App.Vector(-12, 100, 0), App.Vector(0, 100, 0)), False)
sketch11.addGeometry(Part.LineSegment(App.Vector(0, 100, 0), App.Vector(0, 70, 0)), False)
sketch11.addConstraint(Sketcher.Constraint("Coincident", 0, 2, 1, 1))
sketch11.addConstraint(Sketcher.Constraint("Coincident", 1, 2, 2, 1))
sketch11.addConstraint(Sketcher.Constraint("Coincident", 2, 2, 3, 1))
sketch11.addConstraint(Sketcher.Constraint("Coincident", 3, 2, 4, 1))
sketch11.addConstraint(Sketcher.Constraint("Coincident", 4, 2, 5, 1))
sketch11.addConstraint(Sketcher.Constraint("Coincident", 5, 2, 6, 1))
sketch11.addConstraint(Sketcher.Constraint("Coincident", 6, 2, 7, 1))
sketch11.addConstraint(Sketcher.Constraint("Coincident", 7, 2, 8, 1))
sketch11.addConstraint(Sketcher.Constraint("Coincident", 8, 2, 9, 1))
sketch11.addConstraint(Sketcher.Constraint("Coincident", 9, 2, 0, 1))
sketch11.addConstraint(Sketcher.Constraint("Horizontal", 0))
sketch11.addConstraint(Sketcher.Constraint("Vertical", 1))
sketch11.addConstraint(Sketcher.Constraint("Horizontal", 3))
sketch11.addConstraint(Sketcher.Constraint("Horizontal", 8))
sketch11.addConstraint(Sketcher.Constraint("Vertical", 9))
sketch11.addConstraint(Sketcher.Constraint("PointOnObject", 8, 2, -2))
sketch11.addConstraint(Sketcher.Constraint("Vertical", 4, 2, 6, 2))
sketch11.addConstraint(Sketcher.Constraint("Vertical", 3, 2, 7, 2))
sketch11.addConstraint(Sketcher.Constraint("Equal", 0, 9))
sketch11.addConstraint(Sketcher.Constraint("Equal", 5, 6))
sketch11.addConstraint(Sketcher.Constraint("Equal", 4, 7))
sketch11.addConstraint(Sketcher.Constraint("DistanceX", 8, 1, 8, 2, 12.0))
sketch11.addConstraint(Sketcher.Constraint("DistanceY", 7, 2, 3, 2, 20.0))
sketch11.addConstraint(Sketcher.Constraint("DistanceX", 0, 1, 0, 2, 30.0))
sketch11.addConstraint(Sketcher.Constraint("DistanceX", 3, 2, 3, 1, 27.0))
sketch11.addConstraint(Sketcher.Constraint("DistanceY", 1, 1, 1, 2, 35.0))
sketch11.addConstraint(Sketcher.Constraint("DistanceY", -1, 1, 0, 2, 70.0))
sketch11.addConstraint(Sketcher.Constraint("DistanceY", -1, 1, 4, 2, 118.0))
sketch11.addConstraint(Sketcher.Constraint("DistanceX", 5, 2, -1, 1, 7.0))
sketch11.addConstraint(Sketcher.Constraint("DistanceX", 4, 2, -1, 1, 9.5))
sketch11.setExpression("Constraints[21]", "Params.sketch11_width")
sketch11.setExpression("Constraints[23]", "Params.sketch11_width2")
sketch11.setExpression("Constraints[24]", "Params.sketch11_width3")
sketch11.setExpression("Constraints[25]", "Params.sketch11_height")
pad5 = body.newObject("PartDesign::Pad", "Pad004")
pad5.Profile = sketch11
pad5.setExpression("Length", "Params.pad5_length")
pad5.Reversed = True

sketch12 = body.newObject("Sketcher::SketchObject", "Sketch011")
sketch12.AttachmentSupport = (doc.getObject("YZ_Plane"), [""])
sketch12.MapMode = "FlatFace"
sketch12.addGeometry(Part.LineSegment(App.Vector(33.1, -5, 0), App.Vector(33.1, -25.1, 0)), False)
sketch12.addGeometry(Part.LineSegment(App.Vector(33.1, -25.1, 0), App.Vector(31.1, -25.1, 0)), False)
sketch12.addGeometry(Part.LineSegment(App.Vector(31.1, -25.1, 0), App.Vector(31.1, -5, 0)), False)
sketch12.addGeometry(Part.LineSegment(App.Vector(31.1, -5, 0), App.Vector(33.1, -5, 0)), False)
sketch12.addConstraint(Sketcher.Constraint("Coincident", 0, 2, 1, 1))
sketch12.addConstraint(Sketcher.Constraint("Coincident", 1, 2, 2, 1))
sketch12.addConstraint(Sketcher.Constraint("Coincident", 2, 2, 3, 1))
sketch12.addConstraint(Sketcher.Constraint("Coincident", 3, 2, 0, 1))
sketch12.addConstraint(Sketcher.Constraint("Vertical", 0))
sketch12.addConstraint(Sketcher.Constraint("Horizontal", 1))
sketch12.addConstraint(Sketcher.Constraint("Vertical", 2))
sketch12.addConstraint(Sketcher.Constraint("Horizontal", 3))
sketch12.addConstraint(Sketcher.Constraint("DistanceX", 1, 2, 1, 1, 2.02))
sketch12.addConstraint(Sketcher.Constraint("DistanceY", 0, 2, 0, 1, 20.1))
sketch12.addConstraint(Sketcher.Constraint("DistanceX", -1, 1, 1, 2, 31.1))
sketch12.addConstraint(Sketcher.Constraint("DistanceY", 0, 2, -1, 1, 25.05))
sketch12.setExpression("Constraints[8]", "Params.sketch12_width")
sketch12.setExpression("Constraints[9]", "Params.sketch12_height")
pad6 = body.newObject("PartDesign::Pad", "Pad005")
pad6.Profile = sketch12
pad6.setExpression("Length", "Params.pad6_length")

sketch13 = body.newObject("Sketcher::SketchObject", "Sketch012")
sketch13.AttachmentSupport = (doc.getObject("XY_Plane"), [""])
sketch13.MapMode = "FlatFace"
sketch13.addGeometry(Part.LineSegment(App.Vector(-12, 100, 0), App.Vector(0, 100, 0)), False)
sketch13.addGeometry(Part.LineSegment(App.Vector(0, 100, 0), App.Vector(0, 90, 0)), False)
sketch13.addGeometry(Part.LineSegment(App.Vector(0, 90, 0), App.Vector(30, 90, 0)), False)
sketch13.addGeometry(Part.LineSegment(App.Vector(30, 90, 0), App.Vector(30, 105, 0)), False)
sketch13.addGeometry(Part.LineSegment(App.Vector(30, 105, 0), App.Vector(15, 120, 0)), False)
sketch13.addGeometry(Part.LineSegment(App.Vector(15, 120, 0), App.Vector(-12, 120, 0)), False)
sketch13.addGeometry(Part.LineSegment(App.Vector(-12, 120, 0), App.Vector(-9.5, 118, 0)), False)
sketch13.addGeometry(Part.LineSegment(App.Vector(-9.5, 118, 0), App.Vector(-7, 110, 0)), False)
sketch13.addGeometry(Part.LineSegment(App.Vector(-7, 110, 0), App.Vector(-9.5, 102, 0)), False)
sketch13.addGeometry(Part.LineSegment(App.Vector(-9.5, 102, 0), App.Vector(-12, 100, 0)), False)
sketch13.addConstraint(Sketcher.Constraint("Coincident", 0, 2, 1, 1))
sketch13.addConstraint(Sketcher.Constraint("Coincident", 1, 2, 2, 1))
sketch13.addConstraint(Sketcher.Constraint("Coincident", 2, 2, 3, 1))
sketch13.addConstraint(Sketcher.Constraint("Coincident", 3, 2, 4, 1))
sketch13.addConstraint(Sketcher.Constraint("Coincident", 4, 2, 5, 1))
sketch13.addConstraint(Sketcher.Constraint("Coincident", 5, 2, 6, 1))
sketch13.addConstraint(Sketcher.Constraint("Coincident", 6, 2, 7, 1))
sketch13.addConstraint(Sketcher.Constraint("Coincident", 7, 2, 8, 1))
sketch13.addConstraint(Sketcher.Constraint("Coincident", 8, 2, 9, 1))
sketch13.addConstraint(Sketcher.Constraint("Coincident", 9, 2, 0, 1))
sketch13.addConstraint(Sketcher.Constraint("Horizontal", 0))
sketch13.addConstraint(Sketcher.Constraint("Vertical", 1))
sketch13.addConstraint(Sketcher.Constraint("Horizontal", 2))
sketch13.addConstraint(Sketcher.Constraint("Vertical", 3))
sketch13.addConstraint(Sketcher.Constraint("Horizontal", 5))
sketch13.addConstraint(Sketcher.Constraint("PointOnObject", 0, 2, -2))
sketch13.addConstraint(Sketcher.Constraint("Vertical", 6, 2, 8, 2))
sketch13.addConstraint(Sketcher.Constraint("Vertical", 5, 2, 9, 2))
sketch13.addConstraint(Sketcher.Constraint("Equal", 7, 8))
sketch13.addConstraint(Sketcher.Constraint("Equal", 6, 9))
sketch13.addConstraint(Sketcher.Constraint("DistanceX", 2, 1, 2, 2, 30.0))
sketch13.addConstraint(Sketcher.Constraint("DistanceY", 3, 1, 3, 2, 15.0))
sketch13.addConstraint(Sketcher.Constraint("DistanceX", -1, 1, 4, 2, 15.0))
sketch13.addConstraint(Sketcher.Constraint("DistanceY", 3, 2, 4, 2, 15.0))
sketch13.addConstraint(Sketcher.Constraint("DistanceX", 0, 1, 0, 2, 12.0))
sketch13.addConstraint(Sketcher.Constraint("DistanceY", 1, 2, 1, 1, 10.0))
sketch13.addConstraint(Sketcher.Constraint("DistanceY", -1, 1, 0, 2, 100.0))
sketch13.addConstraint(Sketcher.Constraint("DistanceY", -1, 1, 6, 2, 118.0))
sketch13.addConstraint(Sketcher.Constraint("DistanceX", 7, 2, -1, 1, 7.0))
sketch13.addConstraint(Sketcher.Constraint("DistanceX", 6, 2, -1, 1, 9.5))
sketch13.setExpression("Constraints[20]", "Params.sketch13_width")
sketch13.setExpression("Constraints[21]", "Params.sketch13_height")
sketch13.setExpression("Constraints[24]", "Params.sketch13_width2")
sketch13.setExpression("Constraints[25]", "Params.sketch13_height2")
pad7 = body.newObject("PartDesign::Pad", "Pad006")
pad7.Profile = sketch13
pad7.setExpression("Length", "Params.pad7_length")
doc.recompute()

datumplane = body.newObject("PartDesign::Plane", "DatumPlane")
datumplane.AttachmentSupport = (doc.getObject("XY_Plane"), [""])
datumplane.MapMode = "FlatFace"
datumplane.AttachmentOffset = App.Placement(App.Vector(0, 0, -15), App.Rotation())
mirrored = body.newObject("PartDesign::Mirrored", "Mirrored")
mirrored.Originals = [pad7]
mirrored.MirrorPlane = (datumplane, [""])
body.Tip = mirrored

doc.recompute()
